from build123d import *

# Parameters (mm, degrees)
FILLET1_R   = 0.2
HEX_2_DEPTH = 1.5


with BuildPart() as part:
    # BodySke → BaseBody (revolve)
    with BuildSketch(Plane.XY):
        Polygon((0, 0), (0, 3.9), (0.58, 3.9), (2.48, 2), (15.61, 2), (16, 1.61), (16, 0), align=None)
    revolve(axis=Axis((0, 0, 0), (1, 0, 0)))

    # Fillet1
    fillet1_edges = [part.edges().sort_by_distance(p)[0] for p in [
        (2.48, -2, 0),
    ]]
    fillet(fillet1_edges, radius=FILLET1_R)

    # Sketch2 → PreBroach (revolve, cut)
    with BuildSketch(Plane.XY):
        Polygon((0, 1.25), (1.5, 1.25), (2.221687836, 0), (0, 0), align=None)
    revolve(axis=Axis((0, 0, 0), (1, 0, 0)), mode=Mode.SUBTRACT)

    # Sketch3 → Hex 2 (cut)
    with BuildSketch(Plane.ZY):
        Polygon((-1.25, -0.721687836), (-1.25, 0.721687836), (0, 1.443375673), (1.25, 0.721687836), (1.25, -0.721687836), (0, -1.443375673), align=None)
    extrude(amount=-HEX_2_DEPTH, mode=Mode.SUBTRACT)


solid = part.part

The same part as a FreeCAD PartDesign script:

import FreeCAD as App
import Part
import Sketcher

V = App.Vector
Q = App.Units.Quantity


def edges_at(feature, points):
    """Names of the edges that pass closest to the given points."""
    edges = feature.Shape.Edges
    near = lambda p: min(range(len(edges)), key=lambda i: edges[i].distToShape(Part.Vertex(*p))[0])
    return sorted({f"Edge{near(p) + 1}" for p in points})

doc = App.newDocument("Part")
body = doc.addObject("PartDesign::Body", "Body")

# Sketch on XY plane
sketch1 = body.newObject("Sketcher::SketchObject", "Sketch")
sketch1.AttachmentSupport = (doc.getObject("XY_Plane"), [""])
sketch1.MapMode = "FlatFace"
sketch1.addGeometry(Part.LineSegment(V(0, 3.9, 0), V(0, 0, 0)), False)
sketch1.addGeometry(Part.LineSegment(V(0, 0, 0), V(16, 0, 0)), False)
sketch1.addGeometry(Part.LineSegment(V(16, 0, 0), V(16, 1.6, 0)), False)
sketch1.addGeometry(Part.LineSegment(V(16, 1.6, 0), V(15.6, 2, 0)), False)
sketch1.addGeometry(Part.LineSegment(V(15.6, 2, 0), V(2.5, 2, 0)), False)
sketch1.addGeometry(Part.LineSegment(V(2.5, 2, 0), V(0.6, 3.9, 0)), False)
sketch1.addGeometry(Part.LineSegment(V(0.6, 3.9, 0), V(0, 3.9, 0)), False)
sketch1.addConstraint(Sketcher.Constraint("Coincident", 0, 2, 1, 1))
sketch1.addConstraint(Sketcher.Constraint("Coincident", 1, 2, 2, 1))
sketch1.addConstraint(Sketcher.Constraint("Coincident", 2, 2, 3, 1))
sketch1.addConstraint(Sketcher.Constraint("Coincident", 3, 2, 4, 1))
sketch1.addConstraint(Sketcher.Constraint("Coincident", 4, 2, 5, 1))
sketch1.addConstraint(Sketcher.Constraint("Coincident", 5, 2, 6, 1))
sketch1.addConstraint(Sketcher.Constraint("Coincident", 6, 2, 0, 1))
sketch1.addConstraint(Sketcher.Constraint("Vertical", 0))
sketch1.addConstraint(Sketcher.Constraint("Horizontal", 1))
sketch1.addConstraint(Sketcher.Constraint("Vertical", 2))
sketch1.addConstraint(Sketcher.Constraint("Horizontal", 4))
sketch1.addConstraint(Sketcher.Constraint("Horizontal", 6))
sketch1.addConstraint(Sketcher.Constraint("Coincident", 0, 2, -1, 1))
sketch1.addConstraint(Sketcher.Constraint("Parallel", 3, 5))
sketch1.addConstraint(Sketcher.Constraint("DistanceX", 1, 1, 1, 2, 16.0))
sketch1.addConstraint(Sketcher.Constraint("Angle", 3, Q("135 deg")))
sketch1.addConstraint(Sketcher.Constraint("DistanceY", 0, 2, 0, 1, 3.9))
sketch1.addConstraint(Sketcher.Constraint("DistanceY", -1, 1, 3, 2, 2.0))
sketch1.addConstraint(Sketcher.Constraint("DistanceX", 4, 2, 4, 1, 13.13))
sketch1.addConstraint(Sketcher.Constraint("DistanceX", 6, 2, 6, 1, 0.58))
revolution = body.newObject("PartDesign::Revolution", "Revolution")
revolution.Profile = sketch1
revolution.ReferenceAxis = (sketch1, ["H_Axis"])
revolution.Angle = 360
doc.recompute()

fillet = body.newObject("PartDesign::Fillet", "Fillet")
fillet.Base = (revolution, edges_at(revolution, [(2.48, -2, 0)]))
fillet.Radius = 0.2

# Sketch on XY plane
sketch2 = body.newObject("Sketcher::SketchObject", "Sketch001")
sketch2.AttachmentSupport = (doc.getObject("XY_Plane"), [""])
sketch2.MapMode = "FlatFace"
sketch2.addGeometry(Part.LineSegment(V(1.5, 1.2, 0), V(0, 1.2, 0)), False)
sketch2.addGeometry(Part.LineSegment(V(0, 1.2, 0), V(0, 0, 0)), False)
sketch2.addGeometry(Part.LineSegment(V(0, 0, 0), V(2.2, 0, 0)), False)
sketch2.addGeometry(Part.LineSegment(V(2.2, 0, 0), V(1.5, 1.2, 0)), False)
sketch2.addConstraint(Sketcher.Constraint("Coincident", 0, 2, 1, 1))
sketch2.addConstraint(Sketcher.Constraint("Coincident", 1, 2, 2, 1))
sketch2.addConstraint(Sketcher.Constraint("Coincident", 2, 2, 3, 1))
sketch2.addConstraint(Sketcher.Constraint("Coincident", 3, 2, 0, 1))
sketch2.addConstraint(Sketcher.Constraint("Horizontal", 0))
sketch2.addConstraint(Sketcher.Constraint("Vertical", 1))
sketch2.addConstraint(Sketcher.Constraint("Horizontal", 2))
sketch2.addConstraint(Sketcher.Constraint("Coincident", 1, 2, -1, 1))
sketch2.addConstraint(Sketcher.Constraint("Angle", 3, Q("120 deg")))
sketch2.addConstraint(Sketcher.Constraint("DistanceX", 0, 2, 0, 1, 1.5))
sketch2.addConstraint(Sketcher.Constraint("DistanceY", 1, 2, 1, 1, 1.25))
groove = body.newObject("PartDesign::Groove", "Groove")
groove.Profile = sketch2
groove.ReferenceAxis = (sketch2, ["H_Axis"])
groove.Angle = 360

# Sketch on YZ plane
sketch3 = body.newObject("Sketcher::SketchObject", "Sketch002")
sketch3.AttachmentSupport = (doc.getObject("YZ_Plane"), [""])
sketch3.MapMode = "FlatFace"
sketch3.addGeometry(Part.LineSegment(V(0.7, -1.2, 0), V(-0.7, -1.2, 0)), False)
sketch3.addGeometry(Part.LineSegment(V(-0.7, -1.2, 0), V(-1.4, 0, 0)), False)
sketch3.addGeometry(Part.LineSegment(V(-1.4, 0, 0), V(-0.7, 1.2, 0)), False)
sketch3.addGeometry(Part.LineSegment(V(-0.7, 1.2, 0), V(0.7, 1.2, 0)), False)
sketch3.addGeometry(Part.LineSegment(V(0.7, 1.2, 0), V(1.4, 0, 0)), False)
sketch3.addGeometry(Part.LineSegment(V(1.4, 0, 0), V(0.7, -1.2, 0)), False)
sketch3.addConstraint(Sketcher.Constraint("Coincident", 0, 2, 1, 1))
sketch3.addConstraint(Sketcher.Constraint("Coincident", 1, 2, 2, 1))
sketch3.addConstraint(Sketcher.Constraint("Coincident", 2, 2, 3, 1))
sketch3.addConstraint(Sketcher.Constraint("Coincident", 3, 2, 4, 1))
sketch3.addConstraint(Sketcher.Constraint("Coincident", 4, 2, 5, 1))
sketch3.addConstraint(Sketcher.Constraint("Coincident", 5, 2, 0, 1))
sketch3.addConstraint(Sketcher.Constraint("Horizontal", 0))
sketch3.addConstraint(Sketcher.Constraint("Horizontal", 3))
sketch3.addConstraint(Sketcher.Constraint("Symmetric", 0, 2, 3, 2, -1, 1))
sketch3.addConstraint(Sketcher.Constraint("Symmetric", 1, 2, 4, 2, -1, 1))
sketch3.addConstraint(Sketcher.Constraint("PointOnObject", 1, 2, -1))
sketch3.addConstraint(Sketcher.Constraint("Parallel", 2, 5))
sketch3.addConstraint(Sketcher.Constraint("Vertical", 0, 2, 2, 2))
sketch3.addConstraint(Sketcher.Constraint("Angle", 1, Q("120 deg")))
sketch3.addConstraint(Sketcher.Constraint("DistanceY", 0, 2, 2, 2, 2.5))
sketch3.addConstraint(Sketcher.Constraint("DistanceX", 0, 2, 0, 1, 1.443376))
pocket1 = body.newObject("PartDesign::Pocket", "Pocket")
pocket1.Profile = sketch3
pocket1.Length = 1.5
pocket1.Reversed = True

doc.recompute()
